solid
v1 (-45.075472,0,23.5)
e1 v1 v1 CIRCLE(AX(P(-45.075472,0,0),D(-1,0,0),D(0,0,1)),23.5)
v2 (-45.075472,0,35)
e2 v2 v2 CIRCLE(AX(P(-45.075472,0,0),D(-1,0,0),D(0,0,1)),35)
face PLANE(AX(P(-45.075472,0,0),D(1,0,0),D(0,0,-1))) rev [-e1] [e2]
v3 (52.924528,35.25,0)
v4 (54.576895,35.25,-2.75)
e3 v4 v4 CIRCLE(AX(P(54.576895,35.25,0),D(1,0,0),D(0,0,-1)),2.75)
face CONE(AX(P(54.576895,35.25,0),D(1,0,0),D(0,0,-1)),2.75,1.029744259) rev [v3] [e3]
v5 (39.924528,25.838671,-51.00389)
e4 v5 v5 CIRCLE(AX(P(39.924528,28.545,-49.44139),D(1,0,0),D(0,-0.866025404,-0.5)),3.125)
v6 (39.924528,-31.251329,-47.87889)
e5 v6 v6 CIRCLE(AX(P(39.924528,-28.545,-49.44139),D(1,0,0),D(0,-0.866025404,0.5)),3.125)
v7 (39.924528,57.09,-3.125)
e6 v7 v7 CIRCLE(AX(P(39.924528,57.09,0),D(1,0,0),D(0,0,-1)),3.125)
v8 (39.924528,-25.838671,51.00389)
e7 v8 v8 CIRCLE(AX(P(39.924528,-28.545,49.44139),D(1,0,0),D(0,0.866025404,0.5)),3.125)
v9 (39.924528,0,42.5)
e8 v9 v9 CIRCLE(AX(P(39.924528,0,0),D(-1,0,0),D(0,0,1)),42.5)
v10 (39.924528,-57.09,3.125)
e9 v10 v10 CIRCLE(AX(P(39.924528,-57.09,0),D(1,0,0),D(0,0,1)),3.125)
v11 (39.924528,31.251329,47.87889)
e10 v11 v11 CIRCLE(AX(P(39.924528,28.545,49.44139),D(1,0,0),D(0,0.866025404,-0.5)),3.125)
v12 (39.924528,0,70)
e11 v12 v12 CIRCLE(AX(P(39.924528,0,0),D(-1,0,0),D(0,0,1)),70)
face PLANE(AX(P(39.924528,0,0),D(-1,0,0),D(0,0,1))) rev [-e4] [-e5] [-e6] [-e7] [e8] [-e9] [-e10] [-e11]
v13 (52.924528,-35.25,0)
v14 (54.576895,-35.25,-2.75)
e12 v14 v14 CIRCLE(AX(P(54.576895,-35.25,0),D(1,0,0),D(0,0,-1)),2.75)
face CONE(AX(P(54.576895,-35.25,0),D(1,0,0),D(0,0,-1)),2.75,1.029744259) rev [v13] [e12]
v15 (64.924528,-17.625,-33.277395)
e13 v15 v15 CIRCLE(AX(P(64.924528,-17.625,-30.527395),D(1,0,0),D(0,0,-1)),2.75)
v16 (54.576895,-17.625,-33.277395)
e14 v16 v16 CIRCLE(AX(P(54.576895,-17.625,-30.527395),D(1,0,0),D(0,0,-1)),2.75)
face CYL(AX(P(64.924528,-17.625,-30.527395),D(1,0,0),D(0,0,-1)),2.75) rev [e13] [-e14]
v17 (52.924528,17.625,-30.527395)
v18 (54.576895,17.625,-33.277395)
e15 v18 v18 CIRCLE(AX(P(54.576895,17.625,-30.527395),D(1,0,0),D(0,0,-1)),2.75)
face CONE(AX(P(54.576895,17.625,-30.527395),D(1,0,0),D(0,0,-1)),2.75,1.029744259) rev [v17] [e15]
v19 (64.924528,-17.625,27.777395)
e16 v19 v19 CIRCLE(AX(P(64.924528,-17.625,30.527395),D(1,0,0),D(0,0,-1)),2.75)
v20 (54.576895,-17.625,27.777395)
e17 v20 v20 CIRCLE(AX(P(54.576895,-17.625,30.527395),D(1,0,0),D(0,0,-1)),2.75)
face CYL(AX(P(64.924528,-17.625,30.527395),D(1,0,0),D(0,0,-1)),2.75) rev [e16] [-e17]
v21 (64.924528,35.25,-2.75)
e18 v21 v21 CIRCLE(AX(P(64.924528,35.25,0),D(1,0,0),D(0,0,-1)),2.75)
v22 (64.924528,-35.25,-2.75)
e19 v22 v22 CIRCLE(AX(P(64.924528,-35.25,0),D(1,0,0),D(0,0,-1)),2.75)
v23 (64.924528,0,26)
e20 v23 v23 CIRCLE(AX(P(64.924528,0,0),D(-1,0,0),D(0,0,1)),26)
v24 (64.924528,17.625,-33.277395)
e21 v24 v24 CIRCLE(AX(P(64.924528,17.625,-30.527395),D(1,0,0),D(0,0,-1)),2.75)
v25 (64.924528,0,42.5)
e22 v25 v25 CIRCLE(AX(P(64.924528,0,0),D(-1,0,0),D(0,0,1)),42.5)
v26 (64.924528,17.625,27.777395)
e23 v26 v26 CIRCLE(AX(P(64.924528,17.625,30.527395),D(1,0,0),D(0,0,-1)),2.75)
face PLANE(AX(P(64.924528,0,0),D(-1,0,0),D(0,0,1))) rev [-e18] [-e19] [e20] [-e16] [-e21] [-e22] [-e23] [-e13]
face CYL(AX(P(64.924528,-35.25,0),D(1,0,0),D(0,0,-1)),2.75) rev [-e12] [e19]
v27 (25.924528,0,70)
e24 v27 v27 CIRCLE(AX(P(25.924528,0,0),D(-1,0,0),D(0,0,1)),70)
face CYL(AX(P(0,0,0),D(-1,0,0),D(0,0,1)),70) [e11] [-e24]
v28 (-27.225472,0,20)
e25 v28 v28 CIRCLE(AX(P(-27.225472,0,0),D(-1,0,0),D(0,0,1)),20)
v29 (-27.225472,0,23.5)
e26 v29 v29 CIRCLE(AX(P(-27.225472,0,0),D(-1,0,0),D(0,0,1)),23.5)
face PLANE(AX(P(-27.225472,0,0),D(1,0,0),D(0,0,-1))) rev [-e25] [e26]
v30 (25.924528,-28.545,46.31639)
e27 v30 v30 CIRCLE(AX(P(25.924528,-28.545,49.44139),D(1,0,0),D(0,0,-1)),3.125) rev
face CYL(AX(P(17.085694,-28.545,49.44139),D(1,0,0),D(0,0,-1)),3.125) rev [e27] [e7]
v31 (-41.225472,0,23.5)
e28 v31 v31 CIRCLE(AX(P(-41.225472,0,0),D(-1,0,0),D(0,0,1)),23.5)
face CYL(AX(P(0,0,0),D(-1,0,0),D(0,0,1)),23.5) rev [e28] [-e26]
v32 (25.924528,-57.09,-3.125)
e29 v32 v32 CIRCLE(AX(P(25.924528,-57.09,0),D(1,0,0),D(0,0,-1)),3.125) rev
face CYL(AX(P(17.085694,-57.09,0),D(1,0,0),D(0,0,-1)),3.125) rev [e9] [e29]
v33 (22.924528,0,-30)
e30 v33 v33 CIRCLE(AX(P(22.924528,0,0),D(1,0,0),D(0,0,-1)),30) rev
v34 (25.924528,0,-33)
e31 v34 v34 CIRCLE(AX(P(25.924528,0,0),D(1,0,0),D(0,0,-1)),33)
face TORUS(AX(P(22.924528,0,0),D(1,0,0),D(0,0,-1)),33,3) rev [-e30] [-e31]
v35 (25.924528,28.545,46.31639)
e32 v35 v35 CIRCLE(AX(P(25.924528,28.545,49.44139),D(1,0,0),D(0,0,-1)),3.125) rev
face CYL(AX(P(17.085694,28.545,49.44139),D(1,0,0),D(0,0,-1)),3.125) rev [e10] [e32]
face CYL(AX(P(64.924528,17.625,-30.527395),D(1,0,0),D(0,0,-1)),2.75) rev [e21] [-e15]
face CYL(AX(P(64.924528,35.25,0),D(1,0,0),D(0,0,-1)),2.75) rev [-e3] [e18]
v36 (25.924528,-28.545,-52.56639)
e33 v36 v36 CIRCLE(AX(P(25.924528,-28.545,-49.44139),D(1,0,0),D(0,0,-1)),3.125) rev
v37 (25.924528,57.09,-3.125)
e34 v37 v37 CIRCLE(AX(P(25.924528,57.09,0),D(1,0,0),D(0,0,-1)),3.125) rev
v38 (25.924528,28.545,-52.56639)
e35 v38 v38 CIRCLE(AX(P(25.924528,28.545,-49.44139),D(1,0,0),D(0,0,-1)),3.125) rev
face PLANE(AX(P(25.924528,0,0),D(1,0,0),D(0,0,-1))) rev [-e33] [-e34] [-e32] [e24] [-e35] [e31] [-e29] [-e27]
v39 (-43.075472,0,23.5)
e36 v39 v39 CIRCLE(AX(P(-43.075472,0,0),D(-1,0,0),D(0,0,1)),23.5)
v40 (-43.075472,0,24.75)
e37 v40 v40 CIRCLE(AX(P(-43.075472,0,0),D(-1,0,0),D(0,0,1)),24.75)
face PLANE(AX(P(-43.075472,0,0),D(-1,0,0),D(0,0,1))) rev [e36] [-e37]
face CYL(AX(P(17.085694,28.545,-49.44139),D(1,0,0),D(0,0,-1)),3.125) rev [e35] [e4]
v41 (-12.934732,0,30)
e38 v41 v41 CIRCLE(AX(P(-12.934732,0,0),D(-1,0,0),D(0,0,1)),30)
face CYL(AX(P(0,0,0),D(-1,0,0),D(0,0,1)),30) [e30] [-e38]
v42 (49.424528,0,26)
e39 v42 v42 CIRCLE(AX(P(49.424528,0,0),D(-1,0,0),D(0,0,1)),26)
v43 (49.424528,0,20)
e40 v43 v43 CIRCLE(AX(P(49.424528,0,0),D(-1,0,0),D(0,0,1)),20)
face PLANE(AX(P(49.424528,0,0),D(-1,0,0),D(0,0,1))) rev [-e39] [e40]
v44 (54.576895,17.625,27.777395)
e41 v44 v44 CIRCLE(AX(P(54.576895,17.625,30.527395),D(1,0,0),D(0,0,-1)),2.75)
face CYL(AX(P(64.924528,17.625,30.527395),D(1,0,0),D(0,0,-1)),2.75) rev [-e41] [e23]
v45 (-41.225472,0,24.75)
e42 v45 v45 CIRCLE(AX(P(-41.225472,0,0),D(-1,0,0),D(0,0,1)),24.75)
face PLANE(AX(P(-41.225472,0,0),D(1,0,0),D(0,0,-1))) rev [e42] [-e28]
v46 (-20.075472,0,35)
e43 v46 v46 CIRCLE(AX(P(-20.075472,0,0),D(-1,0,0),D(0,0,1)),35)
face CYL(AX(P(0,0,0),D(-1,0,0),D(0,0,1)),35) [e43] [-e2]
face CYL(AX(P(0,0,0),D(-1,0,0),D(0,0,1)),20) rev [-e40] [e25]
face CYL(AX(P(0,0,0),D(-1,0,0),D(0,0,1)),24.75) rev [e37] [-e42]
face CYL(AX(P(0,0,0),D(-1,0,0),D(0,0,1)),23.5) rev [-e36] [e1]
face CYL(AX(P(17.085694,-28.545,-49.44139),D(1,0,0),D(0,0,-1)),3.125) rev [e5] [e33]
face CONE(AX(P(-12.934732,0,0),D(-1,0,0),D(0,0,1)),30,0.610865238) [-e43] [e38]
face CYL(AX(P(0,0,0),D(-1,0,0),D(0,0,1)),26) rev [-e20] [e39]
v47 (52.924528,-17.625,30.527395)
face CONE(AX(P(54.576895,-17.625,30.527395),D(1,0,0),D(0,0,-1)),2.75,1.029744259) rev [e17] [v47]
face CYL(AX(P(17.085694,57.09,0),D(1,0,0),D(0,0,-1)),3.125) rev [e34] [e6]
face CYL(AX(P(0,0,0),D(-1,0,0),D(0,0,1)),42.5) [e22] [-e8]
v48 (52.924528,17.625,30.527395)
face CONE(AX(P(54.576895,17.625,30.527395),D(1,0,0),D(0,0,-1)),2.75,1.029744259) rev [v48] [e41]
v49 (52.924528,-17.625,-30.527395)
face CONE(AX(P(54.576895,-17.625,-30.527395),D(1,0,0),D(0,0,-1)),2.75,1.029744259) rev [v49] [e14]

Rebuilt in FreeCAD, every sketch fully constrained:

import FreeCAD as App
import Part
import Sketcher

V = App.Vector
Q = App.Units.Quantity


def edges_at(feature, points):
    """Names of the edges that pass closest to the given points."""
    edges = feature.Shape.Edges
    near = lambda p: min(range(len(edges)), key=lambda i: edges[i].distToShape(Part.Vertex(*p))[0])
    return sorted({f"Edge{near(p) + 1}" for p in points})


def add_polygon(sketch, points):
    """Adds a closed chain of lines whose ends are joined by coincident constraints."""
    first, n = sketch.GeometryCount, len(points)
    for a, b in zip(points, points[1:] + points[:1]):
        sketch.addGeometry(Part.LineSegment(App.Vector(*a, 0), App.Vector(*b, 0)), False)
    for i in range(n):
        sketch.addConstraint(Sketcher.Constraint("Coincident", first + i, 2, first + (i + 1) % n, 1))

doc = App.newDocument("Part")
params = doc.addObject("Spreadsheet::Sheet", "Params")
for row, (alias, value) in enumerate([
    ("sketch1_width", "14 mm"),
    ("sketch1_width2", "25 mm"),
    ("sketch1_width3", "2 mm"),
    ("sketch1_height", "6 mm"),
    ("sketch1_height2", "40 mm"),
    ("revolution_angle", "360 deg"),
    ("sketch2_diameter", "6.25 mm"),
    ("pocket1_length", "14 mm"),
    ("sketch3_width", "12 mm"),
    ("sketch3_height", "2.75 mm"),
    ("groove_angle", "360 deg"),
    ("fillet_radius", "3 mm"),
], start=1):
    params.set(f"A{row}", alias)
    params.set(f"B{row}", "=" + value)
    params.setAlias(f"B{row}", alias)

body = doc.addObject("PartDesign::Body", "Body")

# Sketch on XY plane
sketch1 = doc.addObject("Sketcher::SketchObject", "Sketch")
body.addObject(sketch1)
sketch1.AttachmentSupport = (doc.XY_Plane, [""])
sketch1.MapMode = "FlatFace"
add_polygon(sketch1, [(-41.2, 23.5), (-27.2, 23.5), (-27.2, 20), (49.4, 20), (49.4, 26), (64.9, 26), (64.9, 42.5), (39.9, 42.5), (39.9, 70), (25.9, 70), (25.9, 30), (-12.9, 30), (-20.1, 35), (-45.1, 35), (-45.1, 23.5), (-43.1, 23.5), (-43.1, 24.8), (-41.2, 24.8)])  # lines 0-17
sketch1.addConstraint(Sketcher.Constraint("Horizontal", 0))
sketch1.addConstraint(Sketcher.Constraint("Vertical", 1))
sketch1.addConstraint(Sketcher.Constraint("Horizontal", 2))
sketch1.addConstraint(Sketcher.Constraint("Vertical", 3))
sketch1.addConstraint(Sketcher.Constraint("Horizontal", 4))
sketch1.addConstraint(Sketcher.Constraint("Vertical", 5))
sketch1.addConstraint(Sketcher.Constraint("Horizontal", 6))
sketch1.addConstraint(Sketcher.Constraint("Vertical", 7))
sketch1.addConstraint(Sketcher.Constraint("Horizontal", 8))
sketch1.addConstraint(Sketcher.Constraint("Vertical", 9))
sketch1.addConstraint(Sketcher.Constraint("Horizontal", 10))
sketch1.addConstraint(Sketcher.Constraint("Horizontal", 12))
sketch1.addConstraint(Sketcher.Constraint("Vertical", 13))
sketch1.addConstraint(Sketcher.Constraint("Horizontal", 14))
sketch1.addConstraint(Sketcher.Constraint("Vertical", 15))
sketch1.addConstraint(Sketcher.Constraint("Horizontal", 16))
sketch1.addConstraint(Sketcher.Constraint("Vertical", 17))
sketch1.addConstraint(Sketcher.Constraint("Horizontal", 0, 2, 13, 2))
sketch1.addConstraint(Sketcher.Constraint("Equal", 0, 8))
sketch1.addConstraint(Sketcher.Constraint("Equal", 6, 12))
sketch1.addConstraint(Sketcher.Constraint("DistanceX", 0, 1, 0, 2, Q("14 mm")))
sketch1.addConstraint(Sketcher.Constraint("DistanceX", 6, 2, 6, 1, Q("25 mm")))
sketch1.addConstraint(Sketcher.Constraint("DistanceX", 14, 1, 14, 2, Q("2 mm")))
sketch1.addConstraint(Sketcher.Constraint("DistanceY", 3, 1, 3, 2, Q("6 mm")))
sketch1.addConstraint(Sketcher.Constraint("DistanceY", 9, 2, 9, 1, Q("40 mm")))
sketch1.addConstraint(Sketcher.Constraint("Angle", 11, Q("145 deg")))
sketch1.addConstraint(Sketcher.Constraint("DistanceX", 4, 1, 4, 2, Q("15.5 mm")))
sketch1.addConstraint(Sketcher.Constraint("DistanceY", 1, 2, 1, 1, Q("3.5 mm")))
sketch1.addConstraint(Sketcher.Constraint("DistanceY", 5, 1, 5, 2, Q("16.5 mm")))
sketch1.addConstraint(Sketcher.Constraint("DistanceY", 7, 1, 7, 2, Q("27.5 mm")))
sketch1.addConstraint(Sketcher.Constraint("DistanceY", 13, 2, 13, 1, Q("11.5 mm")))
sketch1.addConstraint(Sketcher.Constraint("DistanceY", -1, 1, 1, 2, Q("20 mm")))
sketch1.addConstraint(Sketcher.Constraint("DistanceX", 11, 2, 9, 2, Q("46 mm")))
sketch1.addConstraint(Sketcher.Constraint("DistanceX", 2, 1, 2, 2, Q("76.65 mm")))
sketch1.addConstraint(Sketcher.Constraint("DistanceY", 15, 1, 15, 2, Q("1.25 mm")))
sketch1.addConstraint(Sketcher.Constraint("DistanceX", 0, 2, -1, 1, Q("27.225472 mm")))
sketch1.setExpression("Constraints[38]", "Params.sketch1_width")
sketch1.setExpression("Constraints[39]", "Params.sketch1_width2")
sketch1.setExpression("Constraints[40]", "Params.sketch1_width3")
sketch1.setExpression("Constraints[41]", "Params.sketch1_height")
sketch1.setExpression("Constraints[42]", "Params.sketch1_height2")
revolution = doc.addObject("PartDesign::Revolution", "Revolution")
body.addObject(revolution)
revolution.Profile = sketch1
revolution.ReferenceAxis = (sketch1, ["H_Axis"])
revolution.setExpression("Angle", "Params.revolution_angle")

# Sketch on YZ plane
sketch2 = doc.addObject("Sketcher::SketchObject", "Sketch001")
body.addObject(sketch2)
sketch2.AttachmentSupport = (doc.YZ_Plane, [""])
sketch2.MapMode = "FlatFace"
sketch2.AttachmentOffset = App.Placement(V(0, 0, 39.924528), App.Rotation())
sketch2.addGeometry(Part.Circle(V(57.1, 0, 0), V(0, 0, 1), 3.1), False)
sketch2.addConstraint(Sketcher.Constraint("PointOnObject", 0, 3, -1))
sketch2.addConstraint(Sketcher.Constraint("Diameter", 0, Q("6.25 mm")))
sketch2.addConstraint(Sketcher.Constraint("DistanceX", -1, 1, 0, 3, Q("57.09 mm")))
sketch2.setExpression("Constraints[1]", "Params.sketch2_diameter")
pocket1 = doc.addObject("PartDesign::Pocket", "Pocket")
body.addObject(pocket1)
pocket1.Profile = sketch2
pocket1.setExpression("Length", "Params.pocket1_length")

# Sketch on XZ plane
sketch3 = doc.addObject("Sketcher::SketchObject", "Sketch002")
body.addObject(sketch3)
sketch3.AttachmentSupport = (doc.XZ_Plane, [""])
sketch3.MapMode = "FlatFace"
sketch3.AttachmentOffset = App.Placement(V(0, 0, -35.25), App.Rotation())
add_polygon(sketch3, [(52.9, 0), (64.9, 0), (64.9, -2.8), (54.6, -2.8)])  # lines 0-3
sketch3.addConstraint(Sketcher.Constraint("Horizontal", 0))
sketch3.addConstraint(Sketcher.Constraint("Vertical", 1))
sketch3.addConstraint(Sketcher.Constraint("Horizontal", 2))
sketch3.addConstraint(Sketcher.Constraint("PointOnObject", 0, 2, -1))
sketch3.addConstraint(Sketcher.Constraint("DistanceX", 0, 1, 0, 2, Q("12 mm")))
sketch3.addConstraint(Sketcher.Constraint("Angle", 3, Q("121 deg")))
sketch3.addConstraint(Sketcher.Constraint("DistanceY", 1, 2, 1, 1, Q("2.75 mm")))
sketch3.addConstraint(Sketcher.Constraint("DistanceX", -1, 1, 0, 2, Q("64.924528 mm")))
sketch3.setExpression("Constraints[8]", "Params.sketch3_width")
sketch3.setExpression("Constraints[10]", "Params.sketch3_height")
groove = doc.addObject("PartDesign::Groove", "Groove")
body.addObject(groove)
groove.Profile = sketch3
groove.ReferenceAxis = (sketch3, ["H_Axis"])
groove.setExpression("Angle", "Params.groove_angle")
doc.recompute()

polarpattern = doc.addObject("PartDesign::PolarPattern", "PolarPattern")
body.addObject(polarpattern)
polarpattern.Originals = [pocket1, groove]
polarpattern.Axis = (doc.X_Axis, [""])
polarpattern.Angle = 360
polarpattern.Occurrences = 6
body.Tip = polarpattern
doc.recompute()

fillet = doc.addObject("PartDesign::Fillet", "Fillet")
body.addObject(fillet)
fillet.Base = (polarpattern, edges_at(polarpattern, [(25.925, -30, 0)]))
fillet.setExpression("Radius", "Params.fillet_radius")

doc.recompute()
